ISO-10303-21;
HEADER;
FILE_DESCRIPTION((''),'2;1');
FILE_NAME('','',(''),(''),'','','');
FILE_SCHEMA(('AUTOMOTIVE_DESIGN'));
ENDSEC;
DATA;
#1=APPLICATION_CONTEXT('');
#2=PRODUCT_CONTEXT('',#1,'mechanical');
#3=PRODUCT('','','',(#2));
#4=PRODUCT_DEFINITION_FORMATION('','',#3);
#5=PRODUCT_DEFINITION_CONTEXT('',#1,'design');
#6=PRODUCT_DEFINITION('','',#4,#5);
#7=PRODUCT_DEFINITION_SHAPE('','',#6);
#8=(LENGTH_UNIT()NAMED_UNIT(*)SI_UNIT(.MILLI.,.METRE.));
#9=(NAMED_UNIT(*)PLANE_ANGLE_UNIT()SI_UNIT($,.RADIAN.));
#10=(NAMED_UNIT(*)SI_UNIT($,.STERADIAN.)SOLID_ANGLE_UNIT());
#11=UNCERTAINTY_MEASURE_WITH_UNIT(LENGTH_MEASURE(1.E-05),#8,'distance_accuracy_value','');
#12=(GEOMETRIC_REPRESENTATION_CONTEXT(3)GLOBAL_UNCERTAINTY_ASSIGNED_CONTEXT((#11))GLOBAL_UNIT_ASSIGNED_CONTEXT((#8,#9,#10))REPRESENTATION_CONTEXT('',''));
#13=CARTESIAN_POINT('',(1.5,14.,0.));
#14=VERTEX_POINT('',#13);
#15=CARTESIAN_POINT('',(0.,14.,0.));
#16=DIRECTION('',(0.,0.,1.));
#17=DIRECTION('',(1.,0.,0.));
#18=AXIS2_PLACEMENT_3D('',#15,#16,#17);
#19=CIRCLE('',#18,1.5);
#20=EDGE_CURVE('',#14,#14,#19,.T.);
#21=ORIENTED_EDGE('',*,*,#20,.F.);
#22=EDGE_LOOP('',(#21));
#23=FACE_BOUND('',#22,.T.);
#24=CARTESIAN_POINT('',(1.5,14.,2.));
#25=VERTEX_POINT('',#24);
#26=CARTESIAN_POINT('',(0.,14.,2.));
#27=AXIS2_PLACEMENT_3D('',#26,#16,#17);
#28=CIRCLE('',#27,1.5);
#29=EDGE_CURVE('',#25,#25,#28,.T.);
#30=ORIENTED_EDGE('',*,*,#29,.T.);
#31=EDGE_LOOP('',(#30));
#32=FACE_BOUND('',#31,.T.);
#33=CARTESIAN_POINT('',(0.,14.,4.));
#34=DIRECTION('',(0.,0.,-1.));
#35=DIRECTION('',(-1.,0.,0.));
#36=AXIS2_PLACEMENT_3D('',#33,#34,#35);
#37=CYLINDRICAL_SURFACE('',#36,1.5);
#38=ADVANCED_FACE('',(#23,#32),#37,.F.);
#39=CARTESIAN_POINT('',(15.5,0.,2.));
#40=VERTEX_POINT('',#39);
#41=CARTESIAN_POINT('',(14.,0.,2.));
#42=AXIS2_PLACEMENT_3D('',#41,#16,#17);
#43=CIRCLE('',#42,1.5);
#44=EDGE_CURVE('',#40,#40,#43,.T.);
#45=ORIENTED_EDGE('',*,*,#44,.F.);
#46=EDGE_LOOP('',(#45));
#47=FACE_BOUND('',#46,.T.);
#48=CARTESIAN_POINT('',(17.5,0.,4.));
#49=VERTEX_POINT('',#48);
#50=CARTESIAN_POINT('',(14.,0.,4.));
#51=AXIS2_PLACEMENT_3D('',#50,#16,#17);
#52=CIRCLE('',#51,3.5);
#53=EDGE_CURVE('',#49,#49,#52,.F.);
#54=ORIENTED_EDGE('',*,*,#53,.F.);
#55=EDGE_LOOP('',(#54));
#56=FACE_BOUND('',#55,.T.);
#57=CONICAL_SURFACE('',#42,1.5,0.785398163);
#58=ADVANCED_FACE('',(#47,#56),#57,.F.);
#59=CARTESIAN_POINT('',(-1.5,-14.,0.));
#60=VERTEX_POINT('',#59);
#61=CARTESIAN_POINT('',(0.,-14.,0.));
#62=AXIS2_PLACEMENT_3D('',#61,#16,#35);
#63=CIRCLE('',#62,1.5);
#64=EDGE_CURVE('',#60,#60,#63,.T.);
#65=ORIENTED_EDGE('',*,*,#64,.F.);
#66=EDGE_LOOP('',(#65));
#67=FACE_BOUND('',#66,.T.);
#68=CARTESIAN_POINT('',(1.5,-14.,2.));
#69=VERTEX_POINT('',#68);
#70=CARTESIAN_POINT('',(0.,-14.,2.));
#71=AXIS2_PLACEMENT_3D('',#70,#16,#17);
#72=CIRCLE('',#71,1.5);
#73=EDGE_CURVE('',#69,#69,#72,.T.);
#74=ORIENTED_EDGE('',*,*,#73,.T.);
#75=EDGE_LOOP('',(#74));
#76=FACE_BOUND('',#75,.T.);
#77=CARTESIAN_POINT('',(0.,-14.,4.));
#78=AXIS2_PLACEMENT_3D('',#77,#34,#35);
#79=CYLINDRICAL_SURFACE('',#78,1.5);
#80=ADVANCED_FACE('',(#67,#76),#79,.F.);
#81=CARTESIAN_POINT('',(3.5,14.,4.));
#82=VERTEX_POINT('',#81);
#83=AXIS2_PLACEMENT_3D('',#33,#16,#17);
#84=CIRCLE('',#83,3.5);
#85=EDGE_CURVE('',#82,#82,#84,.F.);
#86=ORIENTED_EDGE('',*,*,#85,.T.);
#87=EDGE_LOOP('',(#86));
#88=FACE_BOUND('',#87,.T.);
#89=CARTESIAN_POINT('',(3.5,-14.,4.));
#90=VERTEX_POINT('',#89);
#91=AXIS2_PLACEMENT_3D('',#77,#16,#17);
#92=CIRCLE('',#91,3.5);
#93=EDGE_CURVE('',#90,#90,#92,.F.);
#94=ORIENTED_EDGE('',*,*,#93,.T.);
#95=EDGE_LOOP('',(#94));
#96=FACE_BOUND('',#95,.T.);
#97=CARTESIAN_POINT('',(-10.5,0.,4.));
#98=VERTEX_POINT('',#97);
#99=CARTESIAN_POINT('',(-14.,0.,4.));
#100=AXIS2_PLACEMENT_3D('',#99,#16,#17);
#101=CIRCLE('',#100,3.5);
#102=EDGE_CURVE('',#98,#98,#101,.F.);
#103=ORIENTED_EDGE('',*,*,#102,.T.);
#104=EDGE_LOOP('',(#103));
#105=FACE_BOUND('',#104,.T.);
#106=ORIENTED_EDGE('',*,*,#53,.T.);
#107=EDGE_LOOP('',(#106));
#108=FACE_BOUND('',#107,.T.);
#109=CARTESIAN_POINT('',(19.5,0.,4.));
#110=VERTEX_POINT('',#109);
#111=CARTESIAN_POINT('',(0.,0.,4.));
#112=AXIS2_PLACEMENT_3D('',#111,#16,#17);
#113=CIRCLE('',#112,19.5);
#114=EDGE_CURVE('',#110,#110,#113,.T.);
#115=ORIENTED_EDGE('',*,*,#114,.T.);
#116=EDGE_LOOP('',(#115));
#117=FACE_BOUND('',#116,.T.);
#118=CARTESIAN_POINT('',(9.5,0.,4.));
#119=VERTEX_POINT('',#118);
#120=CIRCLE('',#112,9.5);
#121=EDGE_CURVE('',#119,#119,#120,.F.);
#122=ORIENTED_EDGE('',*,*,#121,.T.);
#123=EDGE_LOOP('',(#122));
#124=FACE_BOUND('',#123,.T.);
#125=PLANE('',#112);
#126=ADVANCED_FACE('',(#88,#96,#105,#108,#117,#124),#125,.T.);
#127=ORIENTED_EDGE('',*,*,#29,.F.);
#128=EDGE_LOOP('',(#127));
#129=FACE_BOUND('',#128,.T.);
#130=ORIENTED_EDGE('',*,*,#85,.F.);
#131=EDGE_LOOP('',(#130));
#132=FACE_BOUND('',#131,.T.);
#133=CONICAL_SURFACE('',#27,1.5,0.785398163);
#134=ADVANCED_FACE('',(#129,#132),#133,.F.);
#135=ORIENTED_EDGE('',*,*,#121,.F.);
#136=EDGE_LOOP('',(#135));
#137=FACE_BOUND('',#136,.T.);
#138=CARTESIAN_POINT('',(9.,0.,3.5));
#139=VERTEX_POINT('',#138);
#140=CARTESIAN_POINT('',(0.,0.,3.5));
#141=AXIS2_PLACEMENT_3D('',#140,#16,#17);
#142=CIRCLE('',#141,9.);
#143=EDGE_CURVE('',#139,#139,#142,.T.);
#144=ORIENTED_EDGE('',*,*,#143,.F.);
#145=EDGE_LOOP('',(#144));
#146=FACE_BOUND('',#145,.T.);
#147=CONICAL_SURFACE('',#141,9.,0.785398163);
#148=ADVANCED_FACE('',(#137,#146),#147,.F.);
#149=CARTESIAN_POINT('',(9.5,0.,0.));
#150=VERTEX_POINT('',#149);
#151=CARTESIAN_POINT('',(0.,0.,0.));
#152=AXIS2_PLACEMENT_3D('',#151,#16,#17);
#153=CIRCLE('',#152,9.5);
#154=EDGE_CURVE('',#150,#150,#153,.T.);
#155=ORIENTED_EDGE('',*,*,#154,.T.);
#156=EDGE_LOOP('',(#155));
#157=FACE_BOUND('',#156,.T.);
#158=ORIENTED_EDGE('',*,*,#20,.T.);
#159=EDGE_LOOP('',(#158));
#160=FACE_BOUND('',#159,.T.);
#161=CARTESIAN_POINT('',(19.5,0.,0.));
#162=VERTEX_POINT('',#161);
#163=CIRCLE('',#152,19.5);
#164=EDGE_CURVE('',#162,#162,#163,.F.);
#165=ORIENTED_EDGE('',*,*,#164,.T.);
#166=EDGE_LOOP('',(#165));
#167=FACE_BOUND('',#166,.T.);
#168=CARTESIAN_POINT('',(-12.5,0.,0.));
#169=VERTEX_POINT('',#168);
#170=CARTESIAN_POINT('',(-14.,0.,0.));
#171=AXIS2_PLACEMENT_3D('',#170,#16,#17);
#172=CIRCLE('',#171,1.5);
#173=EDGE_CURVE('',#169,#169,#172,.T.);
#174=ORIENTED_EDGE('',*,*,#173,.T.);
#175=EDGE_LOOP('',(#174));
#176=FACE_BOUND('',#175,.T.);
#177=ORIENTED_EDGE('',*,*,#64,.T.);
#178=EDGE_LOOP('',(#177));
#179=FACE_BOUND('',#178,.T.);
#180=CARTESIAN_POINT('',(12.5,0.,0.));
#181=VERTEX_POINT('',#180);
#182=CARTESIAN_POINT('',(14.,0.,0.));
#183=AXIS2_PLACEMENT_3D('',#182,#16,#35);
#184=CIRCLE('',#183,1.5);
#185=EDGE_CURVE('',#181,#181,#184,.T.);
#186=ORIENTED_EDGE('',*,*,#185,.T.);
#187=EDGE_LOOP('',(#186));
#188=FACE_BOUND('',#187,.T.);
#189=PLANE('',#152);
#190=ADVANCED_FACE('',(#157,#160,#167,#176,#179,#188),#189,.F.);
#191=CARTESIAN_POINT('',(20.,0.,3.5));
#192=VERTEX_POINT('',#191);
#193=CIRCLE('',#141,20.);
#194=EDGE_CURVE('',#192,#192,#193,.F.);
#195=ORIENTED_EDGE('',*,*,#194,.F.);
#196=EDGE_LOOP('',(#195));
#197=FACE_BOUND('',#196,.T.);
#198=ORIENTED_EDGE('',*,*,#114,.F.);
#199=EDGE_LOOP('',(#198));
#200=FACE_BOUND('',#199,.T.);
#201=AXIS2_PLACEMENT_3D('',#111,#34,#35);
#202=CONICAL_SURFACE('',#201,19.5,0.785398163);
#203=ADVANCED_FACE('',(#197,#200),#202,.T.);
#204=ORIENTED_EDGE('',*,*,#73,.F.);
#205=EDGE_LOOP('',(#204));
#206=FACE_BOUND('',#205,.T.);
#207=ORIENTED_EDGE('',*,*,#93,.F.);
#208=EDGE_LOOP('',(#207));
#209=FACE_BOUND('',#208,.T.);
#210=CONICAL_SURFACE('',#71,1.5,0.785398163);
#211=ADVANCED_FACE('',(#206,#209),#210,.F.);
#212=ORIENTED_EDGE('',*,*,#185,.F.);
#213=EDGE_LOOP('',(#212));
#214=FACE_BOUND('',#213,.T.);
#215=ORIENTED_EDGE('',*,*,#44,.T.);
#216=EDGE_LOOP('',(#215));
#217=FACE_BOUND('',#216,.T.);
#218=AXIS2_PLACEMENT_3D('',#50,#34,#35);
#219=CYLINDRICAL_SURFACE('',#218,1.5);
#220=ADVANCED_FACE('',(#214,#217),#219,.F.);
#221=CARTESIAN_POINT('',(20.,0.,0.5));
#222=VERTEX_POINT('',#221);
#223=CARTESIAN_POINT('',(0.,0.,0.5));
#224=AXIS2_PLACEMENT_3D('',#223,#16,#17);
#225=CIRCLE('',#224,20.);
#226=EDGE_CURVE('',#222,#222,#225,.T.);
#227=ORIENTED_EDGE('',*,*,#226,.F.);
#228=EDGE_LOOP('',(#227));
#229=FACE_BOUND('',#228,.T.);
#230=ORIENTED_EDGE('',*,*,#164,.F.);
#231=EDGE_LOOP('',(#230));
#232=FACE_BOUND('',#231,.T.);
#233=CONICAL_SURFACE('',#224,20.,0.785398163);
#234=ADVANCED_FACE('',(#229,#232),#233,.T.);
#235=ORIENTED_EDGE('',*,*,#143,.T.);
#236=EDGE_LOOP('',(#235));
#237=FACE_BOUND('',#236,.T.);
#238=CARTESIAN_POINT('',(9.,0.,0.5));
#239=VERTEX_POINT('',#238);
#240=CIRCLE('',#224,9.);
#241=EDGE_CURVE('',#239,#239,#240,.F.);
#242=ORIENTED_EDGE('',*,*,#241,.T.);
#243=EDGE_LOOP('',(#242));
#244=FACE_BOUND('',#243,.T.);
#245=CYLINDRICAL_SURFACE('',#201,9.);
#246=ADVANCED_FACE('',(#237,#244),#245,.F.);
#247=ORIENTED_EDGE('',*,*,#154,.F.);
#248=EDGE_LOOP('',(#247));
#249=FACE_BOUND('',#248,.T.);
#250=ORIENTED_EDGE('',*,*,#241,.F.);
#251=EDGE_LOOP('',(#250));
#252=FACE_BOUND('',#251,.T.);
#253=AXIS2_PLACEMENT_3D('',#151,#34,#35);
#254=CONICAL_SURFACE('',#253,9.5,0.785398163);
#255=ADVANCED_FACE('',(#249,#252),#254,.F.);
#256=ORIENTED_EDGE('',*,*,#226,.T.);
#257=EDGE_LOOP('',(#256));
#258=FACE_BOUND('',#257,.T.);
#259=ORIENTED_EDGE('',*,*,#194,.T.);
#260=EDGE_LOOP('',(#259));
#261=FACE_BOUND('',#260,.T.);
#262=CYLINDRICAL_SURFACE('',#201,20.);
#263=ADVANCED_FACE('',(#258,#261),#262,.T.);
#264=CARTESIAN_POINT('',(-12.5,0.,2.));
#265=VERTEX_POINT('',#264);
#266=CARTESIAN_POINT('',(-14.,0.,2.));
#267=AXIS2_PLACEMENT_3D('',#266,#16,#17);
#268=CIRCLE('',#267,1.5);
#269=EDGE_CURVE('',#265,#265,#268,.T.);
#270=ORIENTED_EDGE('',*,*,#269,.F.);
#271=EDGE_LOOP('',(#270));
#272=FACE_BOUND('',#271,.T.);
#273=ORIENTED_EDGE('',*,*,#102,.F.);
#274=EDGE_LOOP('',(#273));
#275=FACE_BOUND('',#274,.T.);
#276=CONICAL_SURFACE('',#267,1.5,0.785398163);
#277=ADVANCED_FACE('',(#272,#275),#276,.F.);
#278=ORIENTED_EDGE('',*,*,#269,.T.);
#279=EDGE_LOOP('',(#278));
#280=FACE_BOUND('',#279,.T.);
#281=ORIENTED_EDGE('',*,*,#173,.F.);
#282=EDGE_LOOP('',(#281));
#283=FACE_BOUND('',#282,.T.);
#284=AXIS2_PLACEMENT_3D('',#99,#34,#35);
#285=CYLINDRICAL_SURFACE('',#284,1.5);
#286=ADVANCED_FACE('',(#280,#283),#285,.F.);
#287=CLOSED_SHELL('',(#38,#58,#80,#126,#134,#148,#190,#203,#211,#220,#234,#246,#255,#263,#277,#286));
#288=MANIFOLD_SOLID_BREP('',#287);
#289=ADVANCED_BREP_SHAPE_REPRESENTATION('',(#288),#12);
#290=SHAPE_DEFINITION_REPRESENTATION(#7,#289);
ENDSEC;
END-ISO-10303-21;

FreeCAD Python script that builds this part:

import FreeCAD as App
import Part
import Sketcher

V = App.Vector


def edges_at(feature, points):
    """Names of the edges that pass closest to the given points."""
    edges = feature.Shape.Edges
    near = lambda p: min(range(len(edges)), key=lambda i: edges[i].distToShape(Part.Vertex(*p))[0])
    return sorted({f"Edge{near(p) + 1}" for p in points})

doc = App.newDocument("Part")
params = doc.addObject("Spreadsheet::Sheet", "Params")
for row, (alias, value) in enumerate([
    ("sketch1_diameter", "40 mm"),
    ("sketch1_diameter2", "3 mm"),
    ("sketch1_diameter3", "18 mm"),
    ("pad1_length", "4 mm"),
    ("chamfer_size", "2 mm"),
    ("chamfer2_size", "0.5 mm"),
], start=1):
    params.set(f"A{row}", alias)
    params.set(f"B{row}", "=" + value)
    params.setAlias(f"B{row}", alias)

body = doc.addObject("PartDesign::Body", "Body")

# Sketch on XY plane
sketch1 = body.newObject("Sketcher::SketchObject", "Sketch")
sketch1.AttachmentSupport = (doc.getObject("XY_Plane"), [""])
sketch1.MapMode = "FlatFace"
sketch1.addGeometry([
    Part.Circle(V(0, 0, 0), V(0, 0, 1), 20),  # 0
    Part.Circle(V(0, -14, 0), V(0, 0, 1), 1.5),  # 1
    Part.Circle(V(-14, 0, 0), V(0, 0, 1), 1.5),  # 2
    Part.Circle(V(0, 0, 0), V(0, 0, 1), 9),  # 3
    Part.Circle(V(14, 0, 0), V(0, 0, 1), 1.5),  # 4
    Part.Circle(V(0, 14, 0), V(0, 0, 1), 1.5),  # 5
], False)
sketch1.addConstraint([
    Sketcher.Constraint("Coincident", 0, 3, -1, 1),
    Sketcher.Constraint("Coincident", 3, 3, -1, 1),
    Sketcher.Constraint("Equal", 1, 2),
    Sketcher.Constraint("Equal", 2, 4),
    Sketcher.Constraint("Equal", 4, 5),
    Sketcher.Constraint("Symmetric", 2, 3, 4, 3, -1, 1),
    Sketcher.Constraint("Symmetric", 1, 3, 5, 3, -1, 1),
    Sketcher.Constraint("PointOnObject", 1, 3, -2),
    Sketcher.Constraint("PointOnObject", 2, 3, -1),
    Sketcher.Constraint("Diameter", 0, 40.0),
    Sketcher.Constraint("Diameter", 1, 3.0),
    Sketcher.Constraint("Diameter", 3, 18.0),
    Sketcher.Constraint("DistanceY", 1, 3, -1, 1, 14.0),
    Sketcher.Constraint("DistanceX", 2, 3, -1, 1, 14.0),
])
sketch1.setExpression("Constraints[9]", "Params.sketch1_diameter")
sketch1.setExpression("Constraints[10]", "Params.sketch1_diameter2")
sketch1.setExpression("Constraints[11]", "Params.sketch1_diameter3")
pad1 = body.newObject("PartDesign::Pad", "Pad")
pad1.Profile = sketch1
pad1.setExpression("Length", "Params.pad1_length")
doc.recompute()

chamfer = body.newObject("PartDesign::Chamfer", "Chamfer")
chamfer.Base = (pad1, edges_at(pad1, [
    (-15.5, 0, 4),
    (12.5, 0, 4),
    (-1.5, -14, 4),
    (-1.5, 14, 4),
]))
chamfer.setExpression("Size", "Params.chamfer_size")
doc.recompute()

chamfer2 = body.newObject("PartDesign::Chamfer", "Chamfer001")
chamfer2.Base = (chamfer, edges_at(chamfer, [
    (-20, 0, 0),
    (-20, 0, 4),
    (-9, 0, 0),
    (-9, 0, 4),
]))
chamfer2.setExpression("Size", "Params.chamfer2_size")

doc.recompute()
